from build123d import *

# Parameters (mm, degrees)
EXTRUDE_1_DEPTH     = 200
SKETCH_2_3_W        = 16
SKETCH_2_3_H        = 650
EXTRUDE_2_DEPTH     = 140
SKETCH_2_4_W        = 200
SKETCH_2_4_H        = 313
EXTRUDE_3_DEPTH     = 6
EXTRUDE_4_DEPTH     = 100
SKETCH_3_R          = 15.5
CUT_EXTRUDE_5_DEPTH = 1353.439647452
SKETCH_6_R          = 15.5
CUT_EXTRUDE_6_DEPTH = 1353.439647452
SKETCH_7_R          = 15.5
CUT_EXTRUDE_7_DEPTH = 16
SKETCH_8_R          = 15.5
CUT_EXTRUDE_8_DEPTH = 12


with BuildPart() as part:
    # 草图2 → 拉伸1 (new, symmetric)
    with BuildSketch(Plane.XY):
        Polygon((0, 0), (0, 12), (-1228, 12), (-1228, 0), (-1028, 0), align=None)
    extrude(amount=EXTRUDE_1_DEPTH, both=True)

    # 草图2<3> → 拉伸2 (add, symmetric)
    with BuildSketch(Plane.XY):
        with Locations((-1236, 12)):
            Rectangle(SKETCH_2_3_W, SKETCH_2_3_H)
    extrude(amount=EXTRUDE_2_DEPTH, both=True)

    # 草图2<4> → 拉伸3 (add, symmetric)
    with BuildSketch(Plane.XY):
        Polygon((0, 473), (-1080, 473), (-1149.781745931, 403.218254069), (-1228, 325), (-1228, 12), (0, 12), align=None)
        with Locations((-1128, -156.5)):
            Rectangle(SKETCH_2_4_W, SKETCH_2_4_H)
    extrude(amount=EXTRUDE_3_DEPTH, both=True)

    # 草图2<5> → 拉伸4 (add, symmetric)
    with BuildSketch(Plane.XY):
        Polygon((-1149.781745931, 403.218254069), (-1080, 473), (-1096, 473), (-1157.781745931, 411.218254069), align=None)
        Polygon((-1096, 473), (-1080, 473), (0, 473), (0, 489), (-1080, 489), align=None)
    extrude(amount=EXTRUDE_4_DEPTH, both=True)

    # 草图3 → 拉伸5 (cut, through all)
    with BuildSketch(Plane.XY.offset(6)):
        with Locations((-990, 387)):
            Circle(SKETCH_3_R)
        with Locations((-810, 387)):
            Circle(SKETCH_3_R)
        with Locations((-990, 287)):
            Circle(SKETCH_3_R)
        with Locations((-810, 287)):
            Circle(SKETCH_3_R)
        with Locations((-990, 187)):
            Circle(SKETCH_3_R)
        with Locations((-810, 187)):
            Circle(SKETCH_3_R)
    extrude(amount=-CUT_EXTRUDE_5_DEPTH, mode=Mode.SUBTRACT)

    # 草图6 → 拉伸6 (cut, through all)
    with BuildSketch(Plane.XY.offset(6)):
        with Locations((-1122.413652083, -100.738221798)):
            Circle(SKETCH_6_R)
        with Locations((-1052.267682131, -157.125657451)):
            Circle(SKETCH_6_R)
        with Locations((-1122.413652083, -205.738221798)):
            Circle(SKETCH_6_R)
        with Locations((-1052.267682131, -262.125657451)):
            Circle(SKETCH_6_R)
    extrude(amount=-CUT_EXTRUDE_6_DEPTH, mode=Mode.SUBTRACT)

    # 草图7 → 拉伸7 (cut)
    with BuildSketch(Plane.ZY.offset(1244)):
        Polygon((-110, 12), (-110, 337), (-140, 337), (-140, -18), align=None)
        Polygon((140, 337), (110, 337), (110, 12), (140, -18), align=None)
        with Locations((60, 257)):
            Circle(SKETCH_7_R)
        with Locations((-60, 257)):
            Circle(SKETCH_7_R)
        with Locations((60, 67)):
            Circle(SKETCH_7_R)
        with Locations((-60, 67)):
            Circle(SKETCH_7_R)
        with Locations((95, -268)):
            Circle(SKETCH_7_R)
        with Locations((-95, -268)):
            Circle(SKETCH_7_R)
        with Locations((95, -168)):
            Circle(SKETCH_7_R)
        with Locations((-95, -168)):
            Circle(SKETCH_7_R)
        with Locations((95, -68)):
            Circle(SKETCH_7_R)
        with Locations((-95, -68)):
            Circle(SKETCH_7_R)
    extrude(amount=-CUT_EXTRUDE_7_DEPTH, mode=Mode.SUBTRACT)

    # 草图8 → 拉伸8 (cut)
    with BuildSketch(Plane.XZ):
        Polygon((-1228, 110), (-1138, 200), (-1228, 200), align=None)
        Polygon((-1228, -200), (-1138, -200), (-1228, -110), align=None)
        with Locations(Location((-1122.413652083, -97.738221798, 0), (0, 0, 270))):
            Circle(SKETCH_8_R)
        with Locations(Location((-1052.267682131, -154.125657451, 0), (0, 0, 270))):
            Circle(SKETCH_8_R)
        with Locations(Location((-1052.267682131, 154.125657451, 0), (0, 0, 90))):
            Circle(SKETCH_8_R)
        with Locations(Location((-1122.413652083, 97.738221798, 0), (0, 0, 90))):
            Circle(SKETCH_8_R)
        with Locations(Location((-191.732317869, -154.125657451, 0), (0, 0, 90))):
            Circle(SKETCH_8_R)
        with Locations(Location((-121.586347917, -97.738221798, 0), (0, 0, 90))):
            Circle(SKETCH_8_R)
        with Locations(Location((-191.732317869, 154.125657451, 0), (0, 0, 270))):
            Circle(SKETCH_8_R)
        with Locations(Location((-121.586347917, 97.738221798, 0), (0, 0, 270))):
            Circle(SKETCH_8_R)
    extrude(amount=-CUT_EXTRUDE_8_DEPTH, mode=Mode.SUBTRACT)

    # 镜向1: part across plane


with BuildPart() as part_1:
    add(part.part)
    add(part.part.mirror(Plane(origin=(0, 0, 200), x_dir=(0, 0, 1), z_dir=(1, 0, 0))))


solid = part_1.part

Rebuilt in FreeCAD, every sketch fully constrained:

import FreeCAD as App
import Part
import Sketcher

V = App.Vector
Q = App.Units.Quantity

doc = App.newDocument("Part")
body = doc.addObject("PartDesign::Body", "Body")

sketch1 = body.newObject("Sketcher::SketchObject", "Sketch")
sketch1.AttachmentSupport = (doc.getObject("XY_Plane"), [""])
sketch1.MapMode = "FlatFace"
sketch1.addGeometry([
    Part.LineSegment(V(0, 0, 0), V(0, 12, 0)),
    Part.LineSegment(V(0, 12, 0), V(-1228, 12, 0)),
    Part.LineSegment(V(-1228, 12, 0), V(-1228, 0, 0)),
    Part.LineSegment(V(-1228, 0, 0), V(0, 0, 0)),
], False)
sketch1.addConstraint([
    Sketcher.Constraint("Coincident", 0, 2, 1, 1),
    Sketcher.Constraint("Coincident", 1, 2, 2, 1),
    Sketcher.Constraint("Coincident", 2, 2, 3, 1),
    Sketcher.Constraint("Coincident", 3, 2, 0, 1),
    Sketcher.Constraint("Vertical", 0),
    Sketcher.Constraint("Horizontal", 1),
    Sketcher.Constraint("Vertical", 2),
    Sketcher.Constraint("Horizontal", 3),
    Sketcher.Constraint("Coincident", 3, 2, -1, 1),
    Sketcher.Constraint("DistanceX", 1, 2, 1, 1, Q("1228 mm")),
    Sketcher.Constraint("DistanceY", 0, 1, 0, 2, Q("12 mm")),
])
pad1 = body.newObject("PartDesign::Pad", "Pad")
pad1.Profile = sketch1
pad1.Length = 400
pad1.Midplane = True

sketch2 = body.newObject("Sketcher::SketchObject", "Sketch001")
sketch2.AttachmentSupport = (doc.getObject("XY_Plane"), [""])
sketch2.MapMode = "FlatFace"
sketch2.addGeometry([
    Part.LineSegment(V(-1244, 337, 0), V(-1244, -313, 0)),
    Part.LineSegment(V(-1244, -313, 0), V(-1228, -313, 0)),
    Part.LineSegment(V(-1228, -313, 0), V(-1228, 337, 0)),
    Part.LineSegment(V(-1228, 337, 0), V(-1244, 337, 0)),
], False)
sketch2.addConstraint([
    Sketcher.Constraint("Coincident", 0, 2, 1, 1),
    Sketcher.Constraint("Coincident", 1, 2, 2, 1),
    Sketcher.Constraint("Coincident", 2, 2, 3, 1),
    Sketcher.Constraint("Coincident", 3, 2, 0, 1),
    Sketcher.Constraint("Vertical", 0),
    Sketcher.Constraint("Horizontal", 1),
    Sketcher.Constraint("Vertical", 2),
    Sketcher.Constraint("Horizontal", 3),
    Sketcher.Constraint("DistanceX", 1, 1, 1, 2, Q("16 mm")),
    Sketcher.Constraint("DistanceY", 0, 2, 0, 1, Q("650 mm")),
    Sketcher.Constraint("DistanceX", 0, 2, -1, 1, Q("1244 mm")),
    Sketcher.Constraint("DistanceY", 0, 2, -1, 1, Q("313 mm")),
])
pad2 = body.newObject("PartDesign::Pad", "Pad001")
pad2.Profile = sketch2
pad2.Length = 280
pad2.Midplane = True

sketch3 = body.newObject("Sketcher::SketchObject", "Sketch002")
sketch3.AttachmentSupport = (doc.getObject("XY_Plane"), [""])
sketch3.MapMode = "FlatFace"
sketch3.addGeometry([
    Part.LineSegment(V(0, 473, 0), V(-1080, 473, 0)),
    Part.LineSegment(V(-1080, 473, 0), V(-1228, 325, 0)),
    Part.LineSegment(V(-1228, 325, 0), V(-1228, 12, 0)),
    Part.LineSegment(V(-1228, 12, 0), V(0, 12, 0)),
    Part.LineSegment(V(0, 12, 0), V(0, 473, 0)),
    Part.LineSegment(V(-1228, 0, 0), V(-1228, -313, 0)),
    Part.LineSegment(V(-1228, -313, 0), V(-1028, -313, 0)),
    Part.LineSegment(V(-1028, -313, 0), V(-1028, 0, 0)),
    Part.LineSegment(V(-1028, 0, 0), V(-1228, 0, 0)),
], False)
sketch3.addConstraint([
    Sketcher.Constraint("Coincident", 0, 2, 1, 1),
    Sketcher.Constraint("Coincident", 1, 2, 2, 1),
    Sketcher.Constraint("Coincident", 2, 2, 3, 1),
    Sketcher.Constraint("Coincident", 3, 2, 4, 1),
    Sketcher.Constraint("Coincident", 4, 2, 0, 1),
    Sketcher.Constraint("Coincident", 5, 2, 6, 1),
    Sketcher.Constraint("Coincident", 6, 2, 7, 1),
    Sketcher.Constraint("Coincident", 7, 2, 8, 1),
    Sketcher.Constraint("Coincident", 8, 2, 5, 1),
    Sketcher.Constraint("Horizontal", 0),
    Sketcher.Constraint("Vertical", 2),
    Sketcher.Constraint("Horizontal", 3),
    Sketcher.Constraint("Vertical", 4),
    Sketcher.Constraint("Vertical", 5),
    Sketcher.Constraint("Horizontal", 6),
    Sketcher.Constraint("Vertical", 7),
    Sketcher.Constraint("Horizontal", 8),
    Sketcher.Constraint("PointOnObject", 3, 2, -2),
    Sketcher.Constraint("PointOnObject", 7, 2, -1),
    Sketcher.Constraint("Vertical", 2, 2, 5, 2),
    Sketcher.Constraint("Equal", 2, 5),
    Sketcher.Constraint("DistanceX", 0, 2, 0, 1, Q("1080 mm")),
    Sketcher.Constraint("DistanceX", 3, 1, 3, 2, Q("1228 mm")),
    Sketcher.Constraint("DistanceX", 6, 1, 6, 2, Q("200 mm")),
    Sketcher.Constraint("DistanceY", 2, 2, 2, 1, Q("313 mm")),
    Sketcher.Constraint("DistanceY", 4, 1, 4, 2, Q("461 mm")),
    Sketcher.Constraint("DistanceY", -1, 1, 0, 2, Q("473 mm")),
])
pad3 = body.newObject("PartDesign::Pad", "Pad002")
pad3.Profile = sketch3
pad3.Length = 12
pad3.Midplane = True

sketch4 = body.newObject("Sketcher::SketchObject", "Sketch003")
sketch4.AttachmentSupport = (doc.getObject("XY_Plane"), [""])
sketch4.MapMode = "FlatFace"
sketch4.addGeometry([
    Part.LineSegment(V(-1149.781746, 403.218254, 0), V(-1080, 473, 0)),
    Part.LineSegment(V(-1080, 473, 0), V(0, 473, 0)),
    Part.LineSegment(V(0, 473, 0), V(0, 489, 0)),
    Part.LineSegment(V(0, 489, 0), V(-1080, 489, 0)),
    Part.LineSegment(V(-1080, 489, 0), V(-1157.781746, 411.218254, 0)),
    Part.LineSegment(V(-1157.781746, 411.218254, 0), V(-1149.781746, 403.218254, 0)),
], False)
sketch4.addConstraint([
    Sketcher.Constraint("Coincident", 0, 2, 1, 1),
    Sketcher.Constraint("Coincident", 1, 2, 2, 1),
    Sketcher.Constraint("Coincident", 2, 2, 3, 1),
    Sketcher.Constraint("Coincident", 3, 2, 4, 1),
    Sketcher.Constraint("Coincident", 4, 2, 5, 1),
    Sketcher.Constraint("Coincident", 5, 2, 0, 1),
    Sketcher.Constraint("Horizontal", 1),
    Sketcher.Constraint("Vertical", 2),
    Sketcher.Constraint("Horizontal", 3),
    Sketcher.Constraint("PointOnObject", 1, 2, -2),
    Sketcher.Constraint("Parallel", 0, 4),
    Sketcher.Constraint("Perpendicular", 4, 5),
    Sketcher.Constraint("Vertical", 0, 2, 3, 2),
    Sketcher.Constraint("DistanceX", 1, 1, 1, 2, Q("1080 mm")),
    Sketcher.Constraint("DistanceY", 2, 1, 2, 2, Q("16 mm")),
    Sketcher.Constraint("Angle", 0, Q("45 deg")),
    Sketcher.Constraint("Distance", 4, Q("110 mm")),
    Sketcher.Constraint("DistanceY", -1, 1, 0, 2, Q("473 mm")),
])
pad4 = body.newObject("PartDesign::Pad", "Pad003")
pad4.Profile = sketch4
pad4.Length = 200
pad4.Midplane = True

sketch5 = body.newObject("Sketcher::SketchObject", "Sketch004")
sketch5.AttachmentSupport = (doc.getObject("XY_Plane"), [""])
sketch5.MapMode = "FlatFace"
sketch5.AttachmentOffset = App.Placement(V(0, 0, 6), App.Rotation())
sketch5.addGeometry([
    Part.Circle(V(-990, 387, 0), V(0, 0, 1), 15.5),
    Part.Circle(V(-810, 387, 0), V(0, 0, 1), 15.5),
    Part.Circle(V(-990, 287, 0), V(0, 0, 1), 15.5),
    Part.Circle(V(-810, 287, 0), V(0, 0, 1), 15.5),
    Part.Circle(V(-990, 187, 0), V(0, 0, 1), 15.5),
    Part.Circle(V(-810, 187, 0), V(0, 0, 1), 15.5),
], False)
sketch5.addConstraint([
    Sketcher.Constraint("Equal", 0, 1),
    Sketcher.Constraint("Equal", 1, 2),
    Sketcher.Constraint("Equal", 2, 3),
    Sketcher.Constraint("Equal", 3, 4),
    Sketcher.Constraint("Equal", 4, 5),
    Sketcher.Constraint("Horizontal", 0, 3, 1, 3),
    Sketcher.Constraint("Horizontal", 2, 3, 3, 3),
    Sketcher.Constraint("Horizontal", 4, 3, 5, 3),
    Sketcher.Constraint("Vertical", 0, 3, 2, 3),
    Sketcher.Constraint("Vertical", 1, 3, 3, 3),
    Sketcher.Constraint("Vertical", 2, 3, 4, 3),
    Sketcher.Constraint("Vertical", 3, 3, 5, 3),
    Sketcher.Constraint("Diameter", 0, Q("31 mm")),
    Sketcher.Constraint("DistanceX", 0, 3, -1, 1, Q("990 mm")),
    Sketcher.Constraint("DistanceY", -1, 1, 0, 3, Q("387 mm")),
    Sketcher.Constraint("DistanceX", 1, 3, -1, 1, Q("810 mm")),
    Sketcher.Constraint("DistanceY", -1, 1, 2, 3, Q("287 mm")),
    Sketcher.Constraint("DistanceY", -1, 1, 4, 3, Q("187 mm")),
])
pocket1 = body.newObject("PartDesign::Pocket", "Pocket")
pocket1.Profile = sketch5
pocket1.Type = "ThroughAll"

sketch6 = body.newObject("Sketcher::SketchObject", "Sketch005")
sketch6.AttachmentSupport = (doc.getObject("XY_Plane"), [""])
sketch6.MapMode = "FlatFace"
sketch6.AttachmentOffset = App.Placement(V(0, 0, 6), App.Rotation())
sketch6.addGeometry([
    Part.Circle(V(-1122.413652, -100.738222, 0), V(0, 0, 1), 15.5),
    Part.Circle(V(-1052.267682, -157.125657, 0), V(0, 0, 1), 15.5),
    Part.Circle(V(-1122.413652, -205.738222, 0), V(0, 0, 1), 15.5),
    Part.Circle(V(-1052.267682, -262.125657, 0), V(0, 0, 1), 15.5),
], False)
sketch6.addConstraint([
    Sketcher.Constraint("Equal", 0, 1),
    Sketcher.Constraint("Equal", 1, 2),
    Sketcher.Constraint("Equal", 2, 3),
    Sketcher.Constraint("Vertical", 0, 3, 2, 3),
    Sketcher.Constraint("Vertical", 1, 3, 3, 3),
    Sketcher.Constraint("Diameter", 0, Q("31 mm")),
    Sketcher.Constraint("DistanceY", 2, 3, 0, 3, Q("105 mm")),
    Sketcher.Constraint("DistanceY", 3, 3, 1, 3, Q("105 mm")),
    Sketcher.Constraint("DistanceY", 0, 3, -1, 1, Q("100.738222 mm")),
    Sketcher.Constraint("DistanceX", 0, 3, 1, 3, Q("70.14597 mm")),
    Sketcher.Constraint("DistanceX", 0, 3, -1, 1, Q("1122.413652 mm")),
    Sketcher.Constraint("DistanceY", 1, 3, -1, 1, Q("157.125657 mm")),
])
pocket2 = body.newObject("PartDesign::Pocket", "Pocket001")
pocket2.Profile = sketch6
pocket2.Type = "ThroughAll"

sketch7 = body.newObject("Sketcher::SketchObject", "Sketch006")
sketch7.AttachmentSupport = (doc.getObject("YZ_Plane"), [""])
sketch7.MapMode = "FlatFace"
sketch7.AttachmentOffset = App.Placement(V(0, 0, -1244), App.Rotation())
sketch7.addGeometry([
    Part.LineSegment(V(12, -110, 0), V(337, -110, 0)),
    Part.LineSegment(V(337, -110, 0), V(337, -140, 0)),
    Part.LineSegment(V(337, -140, 0), V(-18, -140, 0)),
    Part.LineSegment(V(-18, -140, 0), V(12, -110, 0)),
    Part.LineSegment(V(337, 140, 0), V(337, 110, 0)),
    Part.LineSegment(V(337, 110, 0), V(12, 110, 0)),
    Part.LineSegment(V(12, 110, 0), V(-18, 140, 0)),
    Part.LineSegment(V(-18, 140, 0), V(337, 140, 0)),
    Part.Circle(V(257, 60, 0), V(0, 0, 1), 15.5),
    Part.Circle(V(257, -60, 0), V(0, 0, 1), 15.5),
    Part.Circle(V(67, 60, 0), V(0, 0, 1), 15.5),
    Part.Circle(V(67, -60, 0), V(0, 0, 1), 15.5),
    Part.Circle(V(-268, 95, 0), V(0, 0, 1), 15.5),
    Part.Circle(V(-268, -95, 0), V(0, 0, 1), 15.5),
    Part.Circle(V(-168, 95, 0), V(0, 0, 1), 15.5),
    Part.Circle(V(-168, -95, 0), V(0, 0, 1), 15.5),
    Part.Circle(V(-68, 95, 0), V(0, 0, 1), 15.5),
    Part.Circle(V(-68, -95, 0), V(0, 0, 1), 15.5),
], False)
sketch7.addConstraint([
    Sketcher.Constraint("Coincident", 0, 2, 1, 1),
    Sketcher.Constraint("Coincident", 1, 2, 2, 1),
    Sketcher.Constraint("Coincident", 2, 2, 3, 1),
    Sketcher.Constraint("Coincident", 3, 2, 0, 1),
    Sketcher.Constraint("Coincident", 4, 2, 5, 1),
    Sketcher.Constraint("Coincident", 5, 2, 6, 1),
    Sketcher.Constraint("Coincident", 6, 2, 7, 1),
    Sketcher.Constraint("Coincident", 7, 2, 4, 1),
    Sketcher.Constraint("Horizontal", 0),
    Sketcher.Constraint("Vertical", 1),
    Sketcher.Constraint("Horizontal", 2),
    Sketcher.Constraint("Vertical", 4),
    Sketcher.Constraint("Horizontal", 5),
    Sketcher.Constraint("Horizontal", 7),
    Sketcher.Constraint("Equal", 8, 9),
    Sketcher.Constraint("Equal", 9, 10),
    Sketcher.Constraint("Equal", 10, 11),
    Sketcher.Constraint("Equal", 11, 12),
    Sketcher.Constraint("Equal", 12, 13),
    Sketcher.Constraint("Equal", 13, 14),
    Sketcher.Constraint("Equal", 14, 15),
    Sketcher.Constraint("Equal", 15, 16),
    Sketcher.Constraint("Equal", 16, 17),
    Sketcher.Constraint("Symmetric", 8, 3, 9, 3, -1),
    Sketcher.Constraint("Symmetric", 10, 3, 11, 3, -1),
    Sketcher.Constraint("Symmetric", 12, 3, 13, 3, -1),
    Sketcher.Constraint("Symmetric", 14, 3, 15, 3, -1),
    Sketcher.Constraint("Symmetric", 16, 3, 17, 3, -1),
    Sketcher.Constraint("Symmetric", 0, 2, 4, 2, -1),
    Sketcher.Constraint("Symmetric", 2, 2, 6, 2, -1),
    Sketcher.Constraint("Perpendicular", 3, 6),
    Sketcher.Constraint("Horizontal", 8, 3, 10, 3),
    Sketcher.Constraint("Horizontal", 12, 3, 14, 3),
    Sketcher.Constraint("Horizontal", 14, 3, 16, 3),
    Sketcher.Constraint("Vertical", 3, 2, 5, 2),
    Sketcher.Constraint("Diameter", 8, Q("31 mm")),
    Sketcher.Constraint("DistanceX", 0, 1, 0, 2, Q("325 mm")),
    Sketcher.Constraint("DistanceX", 2, 2, 2, 1, Q("355 mm")),
    Sketcher.Constraint("DistanceX", -1, 1, 8, 3, Q("257 mm")),
    Sketcher.Constraint("DistanceY", -1, 1, 8, 3, Q("60 mm")),
    Sketcher.Constraint("DistanceX", -1, 1, 10, 3, Q("67 mm")),
    Sketcher.Constraint("DistanceX", 12, 3, -1, 1, Q("268 mm")),
    Sketcher.Constraint("DistanceY", -1, 1, 12, 3, Q("95 mm")),
    Sketcher.Constraint("DistanceX", 14, 3, -1, 1, Q("168 mm")),
    Sketcher.Constraint("DistanceX", 16, 3, -1, 1, Q("68 mm")),
    Sketcher.Constraint("DistanceX", -1, 1, 0, 2, Q("337 mm")),
    Sketcher.Constraint("DistanceY", 0, 2, -1, 1, Q("110 mm")),
])
pocket3 = body.newObject("PartDesign::Pocket", "Pocket002")
pocket3.Profile = sketch7
pocket3.Length = 16
pocket3.Reversed = True

sketch8 = body.newObject("Sketcher::SketchObject", "Sketch007")
sketch8.AttachmentSupport = (doc.getObject("XZ_Plane"), [""])
sketch8.MapMode = "FlatFace"
sketch8.addGeometry([
    Part.LineSegment(V(-1228, 110, 0), V(-1138, 200, 0)),
    Part.LineSegment(V(-1138, 200, 0), V(-1228, 200, 0)),
    Part.LineSegment(V(-1228, 200, 0), V(-1228, 110, 0)),
    Part.LineSegment(V(-1228, -200, 0), V(-1138, -200, 0)),
    Part.LineSegment(V(-1138, -200, 0), V(-1228, -110, 0)),
    Part.LineSegment(V(-1228, -110, 0), V(-1228, -200, 0)),
    Part.Circle(V(-1122.413652, -97.738222, 0), V(0, 0, 1), 15.5),
    Part.Circle(V(-1052.267682, -154.125657, 0), V(0, 0, 1), 15.5),
    Part.Circle(V(-1052.267682, 154.125657, 0), V(0, 0, 1), 15.5),
    Part.Circle(V(-1122.413652, 97.738222, 0), V(0, 0, 1), 15.5),
    Part.Circle(V(-191.732318, -154.125657, 0), V(0, 0, 1), 15.5),
    Part.Circle(V(-121.586348, -97.738222, 0), V(0, 0, 1), 15.5),
    Part.Circle(V(-191.732318, 154.125657, 0), V(0, 0, 1), 15.5),
    Part.Circle(V(-121.586348, 97.738222, 0), V(0, 0, 1), 15.5),
], False)
sketch8.addConstraint([
    Sketcher.Constraint("Coincident", 0, 2, 1, 1),
    Sketcher.Constraint("Coincident", 1, 2, 2, 1),
    Sketcher.Constraint("Coincident", 2, 2, 0, 1),
    Sketcher.Constraint("Coincident", 3, 2, 4, 1),
    Sketcher.Constraint("Coincident", 4, 2, 5, 1),
    Sketcher.Constraint("Coincident", 5, 2, 3, 1),
    Sketcher.Constraint("Horizontal", 1),
    Sketcher.Constraint("Vertical", 2),
    Sketcher.Constraint("Horizontal", 3),
    Sketcher.Constraint("Vertical", 5),
    Sketcher.Constraint("Equal", 6, 7),
    Sketcher.Constraint("Equal", 7, 8),
    Sketcher.Constraint("Equal", 8, 9),
    Sketcher.Constraint("Equal", 9, 10),
    Sketcher.Constraint("Equal", 10, 11),
    Sketcher.Constraint("Equal", 11, 12),
    Sketcher.Constraint("Equal", 12, 13),
    Sketcher.Constraint("Symmetric", 7, 3, 8, 3, -1),
    Sketcher.Constraint("Symmetric", 6, 3, 9, 3, -1),
    Sketcher.Constraint("Symmetric", 10, 3, 12, 3, -1),
    Sketcher.Constraint("Symmetric", 11, 3, 13, 3, -1),
    Sketcher.Constraint("Symmetric", 0, 2, 3, 2, -1),
    Sketcher.Constraint("Symmetric", 2, 2, 4, 2, -1),
    Sketcher.Constraint("Perpendicular", 0, 4),
    Sketcher.Constraint("Horizontal", 7, 3, 10, 3),
    Sketcher.Constraint("Horizontal", 6, 3, 11, 3),
    Sketcher.Constraint("Diameter", 6, Q("31 mm")),
    Sketcher.Constraint("DistanceX", 1, 2, 1, 1, Q("90 mm")),
    Sketcher.Constraint("DistanceX", 0, 2, -1, 1, Q("1138 mm")),
    Sketcher.Constraint("DistanceY", -1, 1, 0, 2, Q("200 mm")),
    Sketcher.Constraint("DistanceY", 6, 3, -1, 1, Q("97.738222 mm")),
    Sketcher.Constraint("DistanceX", 6, 3, 7, 3, Q("70.14597 mm")),
    Sketcher.Constraint("DistanceY", 6, 3, 8, 3, Q("251.863879 mm")),
    Sketcher.Constraint("DistanceX", 10, 3, 11, 3, Q("70.14597 mm")),
    Sketcher.Constraint("DistanceX", 6, 3, -1, 1, Q("1122.413652 mm")),
    Sketcher.Constraint("DistanceX", 10, 3, -1, 1, Q("191.732318 mm")),
])
pocket4 = body.newObject("PartDesign::Pocket", "Pocket003")
pocket4.Profile = sketch8
pocket4.Length = 12
body2 = doc.addObject("PartDesign::Body", "Body001")
doc.recompute()

body2.BaseFeature = body
doc.recompute()

mirroring = doc.addObject("Part::Mirroring", "Mirroring")
mirroring.Source = body
mirroring.Base = V(0, 0, 200)
mirroring.Normal = V(1, 0, 0)
body3 = doc.addObject("PartDesign::Body", "Body002")
body3.BaseFeature = mirroring
boolean = body2.newObject("PartDesign::Boolean", "Boolean")
boolean.Type = "Fuse"
boolean.addObjects([body3])
doc.recompute()
mirroring.Visibility = False

doc.recompute()
